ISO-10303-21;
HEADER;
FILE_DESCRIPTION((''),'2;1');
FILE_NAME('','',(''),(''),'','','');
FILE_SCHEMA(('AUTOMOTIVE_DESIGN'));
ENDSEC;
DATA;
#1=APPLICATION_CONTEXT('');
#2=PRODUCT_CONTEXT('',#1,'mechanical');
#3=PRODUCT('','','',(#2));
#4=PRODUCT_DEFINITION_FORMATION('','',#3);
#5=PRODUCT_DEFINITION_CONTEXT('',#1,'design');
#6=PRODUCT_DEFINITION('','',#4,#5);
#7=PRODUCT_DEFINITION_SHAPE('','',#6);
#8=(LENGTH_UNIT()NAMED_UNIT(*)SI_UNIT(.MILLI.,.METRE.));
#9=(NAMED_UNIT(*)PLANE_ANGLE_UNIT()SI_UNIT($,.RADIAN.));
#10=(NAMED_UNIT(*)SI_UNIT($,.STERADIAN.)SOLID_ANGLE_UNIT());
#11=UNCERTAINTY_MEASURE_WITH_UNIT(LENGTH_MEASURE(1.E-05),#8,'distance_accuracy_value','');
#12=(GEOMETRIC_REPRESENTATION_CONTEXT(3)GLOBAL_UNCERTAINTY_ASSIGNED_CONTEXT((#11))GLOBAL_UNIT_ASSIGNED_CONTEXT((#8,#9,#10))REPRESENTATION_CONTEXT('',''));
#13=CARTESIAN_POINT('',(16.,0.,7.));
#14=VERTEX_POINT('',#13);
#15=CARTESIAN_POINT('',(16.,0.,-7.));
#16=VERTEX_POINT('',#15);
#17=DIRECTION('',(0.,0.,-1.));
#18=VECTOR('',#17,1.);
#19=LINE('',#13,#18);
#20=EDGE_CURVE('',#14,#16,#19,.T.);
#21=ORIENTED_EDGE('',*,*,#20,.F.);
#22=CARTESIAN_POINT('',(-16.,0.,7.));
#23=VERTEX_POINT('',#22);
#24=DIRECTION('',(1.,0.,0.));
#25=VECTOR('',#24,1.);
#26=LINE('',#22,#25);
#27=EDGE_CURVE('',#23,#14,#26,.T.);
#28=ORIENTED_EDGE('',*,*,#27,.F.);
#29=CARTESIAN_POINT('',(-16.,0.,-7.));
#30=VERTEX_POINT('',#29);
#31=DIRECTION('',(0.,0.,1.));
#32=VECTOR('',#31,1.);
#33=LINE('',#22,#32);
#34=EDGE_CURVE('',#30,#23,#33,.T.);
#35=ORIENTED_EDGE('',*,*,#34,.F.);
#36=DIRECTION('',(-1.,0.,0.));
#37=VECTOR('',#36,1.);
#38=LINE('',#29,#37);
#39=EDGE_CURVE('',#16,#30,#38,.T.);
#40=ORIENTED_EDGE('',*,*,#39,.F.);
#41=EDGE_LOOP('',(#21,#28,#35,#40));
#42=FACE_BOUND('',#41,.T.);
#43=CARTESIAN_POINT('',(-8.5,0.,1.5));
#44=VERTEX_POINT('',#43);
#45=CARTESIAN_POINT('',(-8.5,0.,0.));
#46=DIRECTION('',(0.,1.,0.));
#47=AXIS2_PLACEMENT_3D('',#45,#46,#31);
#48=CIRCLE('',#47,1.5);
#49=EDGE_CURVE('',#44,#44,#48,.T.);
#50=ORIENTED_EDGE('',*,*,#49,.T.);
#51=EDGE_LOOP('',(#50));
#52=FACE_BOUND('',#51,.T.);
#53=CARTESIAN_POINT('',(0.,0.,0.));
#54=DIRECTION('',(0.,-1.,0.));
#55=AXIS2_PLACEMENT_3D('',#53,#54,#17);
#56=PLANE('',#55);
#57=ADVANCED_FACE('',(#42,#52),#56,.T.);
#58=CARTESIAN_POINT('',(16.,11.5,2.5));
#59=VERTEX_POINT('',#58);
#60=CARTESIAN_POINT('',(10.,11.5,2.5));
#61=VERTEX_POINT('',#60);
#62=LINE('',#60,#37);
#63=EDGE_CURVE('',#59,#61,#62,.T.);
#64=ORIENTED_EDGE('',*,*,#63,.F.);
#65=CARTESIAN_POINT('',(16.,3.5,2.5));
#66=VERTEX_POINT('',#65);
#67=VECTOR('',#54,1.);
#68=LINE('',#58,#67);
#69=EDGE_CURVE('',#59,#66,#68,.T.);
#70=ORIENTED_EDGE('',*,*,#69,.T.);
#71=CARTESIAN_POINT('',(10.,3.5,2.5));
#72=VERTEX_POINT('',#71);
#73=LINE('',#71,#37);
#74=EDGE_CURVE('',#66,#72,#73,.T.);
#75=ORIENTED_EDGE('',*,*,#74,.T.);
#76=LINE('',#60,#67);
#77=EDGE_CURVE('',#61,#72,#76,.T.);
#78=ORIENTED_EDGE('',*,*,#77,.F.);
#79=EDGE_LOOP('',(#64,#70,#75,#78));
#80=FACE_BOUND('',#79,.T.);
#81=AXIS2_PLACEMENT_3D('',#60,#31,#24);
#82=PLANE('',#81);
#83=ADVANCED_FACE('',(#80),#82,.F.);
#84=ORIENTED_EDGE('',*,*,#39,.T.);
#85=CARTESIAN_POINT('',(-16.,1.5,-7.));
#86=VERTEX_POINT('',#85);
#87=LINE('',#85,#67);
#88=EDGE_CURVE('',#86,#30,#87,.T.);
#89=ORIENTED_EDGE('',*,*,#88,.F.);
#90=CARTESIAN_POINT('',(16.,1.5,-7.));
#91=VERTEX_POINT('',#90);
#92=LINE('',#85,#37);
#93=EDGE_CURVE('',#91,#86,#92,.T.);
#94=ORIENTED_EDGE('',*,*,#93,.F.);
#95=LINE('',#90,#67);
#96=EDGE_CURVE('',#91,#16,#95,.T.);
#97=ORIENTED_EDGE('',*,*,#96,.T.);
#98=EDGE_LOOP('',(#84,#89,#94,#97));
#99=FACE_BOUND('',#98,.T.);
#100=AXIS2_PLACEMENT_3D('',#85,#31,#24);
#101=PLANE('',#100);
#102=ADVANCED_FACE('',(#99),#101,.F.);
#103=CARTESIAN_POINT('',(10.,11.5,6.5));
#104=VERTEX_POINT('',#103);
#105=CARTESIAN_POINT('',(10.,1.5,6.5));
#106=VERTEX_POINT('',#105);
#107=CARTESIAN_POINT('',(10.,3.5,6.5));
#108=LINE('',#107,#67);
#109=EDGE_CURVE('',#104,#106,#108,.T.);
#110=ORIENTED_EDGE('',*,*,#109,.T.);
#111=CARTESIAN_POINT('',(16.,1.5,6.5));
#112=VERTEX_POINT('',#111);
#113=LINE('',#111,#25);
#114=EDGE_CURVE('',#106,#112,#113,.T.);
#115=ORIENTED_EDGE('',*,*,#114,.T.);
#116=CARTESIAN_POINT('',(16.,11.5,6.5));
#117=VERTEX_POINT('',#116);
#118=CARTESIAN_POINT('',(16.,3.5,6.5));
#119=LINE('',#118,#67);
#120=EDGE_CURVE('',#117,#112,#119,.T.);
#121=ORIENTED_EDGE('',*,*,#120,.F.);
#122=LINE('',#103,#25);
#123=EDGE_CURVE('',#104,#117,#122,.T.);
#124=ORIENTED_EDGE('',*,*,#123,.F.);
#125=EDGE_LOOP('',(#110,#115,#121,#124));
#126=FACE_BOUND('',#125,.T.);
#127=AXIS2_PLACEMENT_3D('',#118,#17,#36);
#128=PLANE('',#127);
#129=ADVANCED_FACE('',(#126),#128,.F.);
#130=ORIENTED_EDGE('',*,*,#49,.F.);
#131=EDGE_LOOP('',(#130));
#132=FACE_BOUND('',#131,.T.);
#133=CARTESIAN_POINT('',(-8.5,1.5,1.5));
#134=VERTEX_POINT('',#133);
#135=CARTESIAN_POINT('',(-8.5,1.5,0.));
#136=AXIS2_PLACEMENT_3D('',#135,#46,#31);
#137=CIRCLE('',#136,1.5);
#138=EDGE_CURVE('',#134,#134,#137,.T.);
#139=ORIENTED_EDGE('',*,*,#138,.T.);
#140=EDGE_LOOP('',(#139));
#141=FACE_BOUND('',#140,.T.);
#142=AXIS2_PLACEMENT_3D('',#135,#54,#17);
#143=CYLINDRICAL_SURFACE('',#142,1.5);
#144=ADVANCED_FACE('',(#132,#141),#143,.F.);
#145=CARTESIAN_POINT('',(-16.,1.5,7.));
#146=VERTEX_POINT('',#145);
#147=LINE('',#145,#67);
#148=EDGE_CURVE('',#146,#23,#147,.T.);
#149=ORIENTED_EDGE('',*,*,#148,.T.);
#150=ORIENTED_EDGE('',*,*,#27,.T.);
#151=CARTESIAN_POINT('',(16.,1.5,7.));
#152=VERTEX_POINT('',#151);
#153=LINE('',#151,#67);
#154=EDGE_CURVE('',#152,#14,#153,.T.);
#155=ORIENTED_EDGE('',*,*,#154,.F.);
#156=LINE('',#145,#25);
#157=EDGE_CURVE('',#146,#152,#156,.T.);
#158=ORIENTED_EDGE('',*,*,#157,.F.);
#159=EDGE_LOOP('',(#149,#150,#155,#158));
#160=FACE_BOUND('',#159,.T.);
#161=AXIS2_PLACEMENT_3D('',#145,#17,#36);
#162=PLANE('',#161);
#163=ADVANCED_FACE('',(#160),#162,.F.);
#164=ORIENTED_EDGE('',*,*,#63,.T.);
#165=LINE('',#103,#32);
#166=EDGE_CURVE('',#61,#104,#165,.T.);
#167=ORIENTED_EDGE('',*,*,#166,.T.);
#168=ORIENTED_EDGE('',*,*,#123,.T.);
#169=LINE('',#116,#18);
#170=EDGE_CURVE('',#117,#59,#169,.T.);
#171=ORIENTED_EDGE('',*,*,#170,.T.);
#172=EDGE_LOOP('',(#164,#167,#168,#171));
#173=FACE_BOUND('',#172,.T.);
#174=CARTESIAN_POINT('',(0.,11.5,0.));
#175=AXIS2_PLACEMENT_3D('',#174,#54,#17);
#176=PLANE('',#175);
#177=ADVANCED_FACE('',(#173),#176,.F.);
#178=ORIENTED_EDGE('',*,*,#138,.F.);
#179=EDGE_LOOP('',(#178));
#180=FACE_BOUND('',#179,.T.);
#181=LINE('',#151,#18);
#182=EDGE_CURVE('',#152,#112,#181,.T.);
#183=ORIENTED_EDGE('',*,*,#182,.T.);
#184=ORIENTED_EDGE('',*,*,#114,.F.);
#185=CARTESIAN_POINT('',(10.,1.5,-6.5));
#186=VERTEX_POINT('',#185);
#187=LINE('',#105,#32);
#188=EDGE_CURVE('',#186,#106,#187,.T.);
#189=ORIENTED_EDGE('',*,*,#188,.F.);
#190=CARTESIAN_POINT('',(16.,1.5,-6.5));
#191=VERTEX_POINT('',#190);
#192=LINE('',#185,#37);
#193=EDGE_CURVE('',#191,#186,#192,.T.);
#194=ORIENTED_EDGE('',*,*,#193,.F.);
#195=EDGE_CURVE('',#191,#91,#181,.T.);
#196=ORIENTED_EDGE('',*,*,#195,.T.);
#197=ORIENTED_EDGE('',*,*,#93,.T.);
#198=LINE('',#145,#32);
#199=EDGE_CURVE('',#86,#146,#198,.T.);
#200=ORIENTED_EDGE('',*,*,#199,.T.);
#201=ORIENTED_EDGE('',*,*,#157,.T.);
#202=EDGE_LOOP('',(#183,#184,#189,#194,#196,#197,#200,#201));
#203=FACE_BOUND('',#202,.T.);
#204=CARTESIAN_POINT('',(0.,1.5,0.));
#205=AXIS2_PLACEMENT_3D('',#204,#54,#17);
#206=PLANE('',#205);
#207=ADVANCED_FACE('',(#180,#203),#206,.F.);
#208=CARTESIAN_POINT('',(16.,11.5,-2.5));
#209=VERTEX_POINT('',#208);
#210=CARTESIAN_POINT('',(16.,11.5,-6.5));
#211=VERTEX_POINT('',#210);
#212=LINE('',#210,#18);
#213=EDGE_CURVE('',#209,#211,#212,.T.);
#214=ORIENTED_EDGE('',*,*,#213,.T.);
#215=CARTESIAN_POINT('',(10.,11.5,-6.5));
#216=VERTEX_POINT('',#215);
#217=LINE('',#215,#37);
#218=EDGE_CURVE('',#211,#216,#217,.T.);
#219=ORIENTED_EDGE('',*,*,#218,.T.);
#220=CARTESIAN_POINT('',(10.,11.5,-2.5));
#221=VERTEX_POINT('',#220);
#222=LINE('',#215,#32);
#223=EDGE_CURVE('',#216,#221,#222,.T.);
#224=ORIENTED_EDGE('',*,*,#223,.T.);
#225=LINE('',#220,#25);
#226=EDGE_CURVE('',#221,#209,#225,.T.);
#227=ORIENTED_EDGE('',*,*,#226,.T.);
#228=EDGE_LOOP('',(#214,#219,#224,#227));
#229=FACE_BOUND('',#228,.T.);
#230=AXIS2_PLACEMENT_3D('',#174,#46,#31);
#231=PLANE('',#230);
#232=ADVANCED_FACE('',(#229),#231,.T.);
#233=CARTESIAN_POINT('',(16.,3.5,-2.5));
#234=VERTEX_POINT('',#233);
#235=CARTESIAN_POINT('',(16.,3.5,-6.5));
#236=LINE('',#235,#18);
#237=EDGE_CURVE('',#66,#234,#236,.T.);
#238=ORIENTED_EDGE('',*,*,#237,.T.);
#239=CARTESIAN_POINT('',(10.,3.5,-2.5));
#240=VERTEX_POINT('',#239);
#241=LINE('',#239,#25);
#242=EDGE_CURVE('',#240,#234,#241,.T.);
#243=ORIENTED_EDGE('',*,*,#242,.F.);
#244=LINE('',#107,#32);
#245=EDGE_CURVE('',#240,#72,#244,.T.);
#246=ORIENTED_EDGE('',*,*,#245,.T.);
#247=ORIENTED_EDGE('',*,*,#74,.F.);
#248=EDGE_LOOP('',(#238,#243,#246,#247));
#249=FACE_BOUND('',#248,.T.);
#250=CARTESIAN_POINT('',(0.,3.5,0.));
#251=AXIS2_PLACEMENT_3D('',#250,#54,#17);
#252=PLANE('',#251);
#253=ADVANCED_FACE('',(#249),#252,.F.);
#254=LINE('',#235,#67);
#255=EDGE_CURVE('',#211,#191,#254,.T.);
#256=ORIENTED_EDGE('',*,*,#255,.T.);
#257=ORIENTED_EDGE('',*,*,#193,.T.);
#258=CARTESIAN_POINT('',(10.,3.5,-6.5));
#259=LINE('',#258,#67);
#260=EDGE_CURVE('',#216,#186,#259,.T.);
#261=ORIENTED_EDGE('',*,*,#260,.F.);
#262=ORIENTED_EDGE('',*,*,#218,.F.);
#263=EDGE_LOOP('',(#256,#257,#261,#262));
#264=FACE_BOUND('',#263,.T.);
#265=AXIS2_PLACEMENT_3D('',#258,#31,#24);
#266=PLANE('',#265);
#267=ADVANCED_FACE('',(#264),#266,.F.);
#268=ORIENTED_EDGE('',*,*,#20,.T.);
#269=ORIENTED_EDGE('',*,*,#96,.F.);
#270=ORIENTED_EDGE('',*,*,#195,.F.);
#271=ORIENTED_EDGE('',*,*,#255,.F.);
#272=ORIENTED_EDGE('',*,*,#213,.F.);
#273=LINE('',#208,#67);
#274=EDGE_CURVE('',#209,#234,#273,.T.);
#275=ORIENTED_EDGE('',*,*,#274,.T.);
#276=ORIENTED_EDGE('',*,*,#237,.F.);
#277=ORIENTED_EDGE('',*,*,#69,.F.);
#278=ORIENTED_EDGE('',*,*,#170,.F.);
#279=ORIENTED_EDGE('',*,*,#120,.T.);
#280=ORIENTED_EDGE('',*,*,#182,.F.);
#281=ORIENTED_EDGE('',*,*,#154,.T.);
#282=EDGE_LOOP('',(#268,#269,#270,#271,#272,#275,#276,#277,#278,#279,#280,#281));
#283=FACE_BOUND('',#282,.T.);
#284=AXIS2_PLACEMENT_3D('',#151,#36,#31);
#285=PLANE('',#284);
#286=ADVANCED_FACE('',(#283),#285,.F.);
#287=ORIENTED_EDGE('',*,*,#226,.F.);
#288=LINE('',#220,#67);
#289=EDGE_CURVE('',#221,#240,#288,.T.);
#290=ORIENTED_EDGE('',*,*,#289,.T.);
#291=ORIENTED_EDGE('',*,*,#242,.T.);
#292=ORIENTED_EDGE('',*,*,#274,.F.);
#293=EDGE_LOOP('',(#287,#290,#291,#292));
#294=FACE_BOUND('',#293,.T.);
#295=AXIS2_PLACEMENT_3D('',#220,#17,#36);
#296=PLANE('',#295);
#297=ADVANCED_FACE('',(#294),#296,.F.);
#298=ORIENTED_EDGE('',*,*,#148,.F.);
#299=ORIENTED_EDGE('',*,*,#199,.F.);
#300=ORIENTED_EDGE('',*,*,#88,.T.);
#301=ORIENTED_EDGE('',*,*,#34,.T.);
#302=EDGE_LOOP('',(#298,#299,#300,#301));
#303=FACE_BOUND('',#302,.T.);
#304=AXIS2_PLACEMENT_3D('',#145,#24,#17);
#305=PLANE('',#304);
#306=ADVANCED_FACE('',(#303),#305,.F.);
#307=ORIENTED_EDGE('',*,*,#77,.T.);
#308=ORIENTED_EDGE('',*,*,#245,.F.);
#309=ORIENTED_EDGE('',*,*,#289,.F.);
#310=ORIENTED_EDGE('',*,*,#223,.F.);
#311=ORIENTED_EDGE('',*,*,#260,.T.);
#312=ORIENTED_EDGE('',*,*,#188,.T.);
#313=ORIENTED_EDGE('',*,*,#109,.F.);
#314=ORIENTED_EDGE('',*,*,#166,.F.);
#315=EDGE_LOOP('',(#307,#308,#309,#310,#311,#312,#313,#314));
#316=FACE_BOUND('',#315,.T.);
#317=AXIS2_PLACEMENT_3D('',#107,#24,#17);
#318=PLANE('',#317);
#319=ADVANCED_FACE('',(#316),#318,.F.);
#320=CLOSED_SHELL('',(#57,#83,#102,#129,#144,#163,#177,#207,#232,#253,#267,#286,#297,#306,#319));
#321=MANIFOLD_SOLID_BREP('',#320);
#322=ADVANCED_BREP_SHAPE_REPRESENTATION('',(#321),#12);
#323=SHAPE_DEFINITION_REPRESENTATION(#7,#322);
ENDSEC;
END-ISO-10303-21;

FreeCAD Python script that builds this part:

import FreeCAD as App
import Part
import Sketcher
from FreeCAD import Vector
Q = App.Units.Quantity


def add_polygon(sketch, points):
    """Adds a closed chain of lines whose ends are joined by coincident constraints."""
    first, n = sketch.GeometryCount, len(points)
    for a, b in zip(points, points[1:] + points[:1]):
        sketch.addGeometry(Part.LineSegment(App.Vector(*a, 0), App.Vector(*b, 0)), False)
    for i in range(n):
        sketch.addConstraint(Sketcher.Constraint("Coincident", first + i, 2, first + (i + 1) % n, 1))

doc = App.newDocument("Part")
body = doc.addObject("PartDesign::Body", "Body")

# Sketch on XZ plane
sketch1 = body.newObject("Sketcher::SketchObject", "Sketch")
sketch1.AttachmentSupport = (doc.getObject("XZ_Plane"), [""])
sketch1.MapMode = "FlatFace"
add_polygon(sketch1, [(-16, -7), (-16, 7), (16, 7), (16, -7)])  # lines 0-3
sketch1.addGeometry(Part.Circle(Vector(-8.5, 0, 0), Vector(0, 0, 1), 1.5), False)  # 4
sketch1.addConstraint(Sketcher.Constraint("Vertical", 0))
sketch1.addConstraint(Sketcher.Constraint("Horizontal", 1))
sketch1.addConstraint(Sketcher.Constraint("Vertical", 2))
sketch1.addConstraint(Sketcher.Constraint("Horizontal", 3))
sketch1.addConstraint(Sketcher.Constraint("Symmetric", 0, 2, 2, 2, -1, 1))
sketch1.addConstraint(Sketcher.Constraint("PointOnObject", 4, 3, -1))
sketch1.addConstraint(Sketcher.Constraint("Diameter", 4, Q("3 mm")))
sketch1.addConstraint(Sketcher.Constraint("DistanceX", 1, 1, 1, 2, Q("32 mm")))
sketch1.addConstraint(Sketcher.Constraint("DistanceY", 0, 1, 0, 2, Q("14 mm")))
sketch1.addConstraint(Sketcher.Constraint("DistanceX", 4, 3, -1, 1, Q("8.5 mm")))
pad1 = body.newObject("PartDesign::Pad", "Pad")
pad1.Profile = sketch1
pad1.Length = 1.5
pad1.Reversed = True

# Sketch on XZ plane
sketch2 = body.newObject("Sketcher::SketchObject", "Sketch001")
sketch2.AttachmentSupport = (doc.getObject("XZ_Plane"), [""])
sketch2.MapMode = "FlatFace"
sketch2.AttachmentOffset = App.Placement(Vector(0, 0, -1.5), App.Rotation())
add_polygon(sketch2, [(10, -6), (10, 6), (16, 6), (16, -6)])  # lines 0-3
sketch2.addConstraint(Sketcher.Constraint("Vertical", 0))
sketch2.addConstraint(Sketcher.Constraint("Horizontal", 1))
sketch2.addConstraint(Sketcher.Constraint("Vertical", 2))
sketch2.addConstraint(Sketcher.Constraint("Horizontal", 3))
sketch2.addConstraint(Sketcher.Constraint("DistanceX", 1, 1, 1, 2, Q("6 mm")))
sketch2.addConstraint(Sketcher.Constraint("DistanceY", 0, 1, 0, 2, Q("13 mm")))
sketch2.addConstraint(Sketcher.Constraint("DistanceX", -1, 1, 0, 2, Q("10 mm")))
sketch2.addConstraint(Sketcher.Constraint("DistanceY", -1, 1, 0, 2, Q("6.5 mm")))
pad2 = body.newObject("PartDesign::Pad", "Pad001")
pad2.Profile = sketch2
pad2.Length = 2
pad2.Reversed = True

# Sketch on XZ plane
sketch3 = body.newObject("Sketcher::SketchObject", "Sketch002")
sketch3.AttachmentSupport = (doc.getObject("XZ_Plane"), [""])
sketch3.MapMode = "FlatFace"
sketch3.AttachmentOffset = App.Placement(Vector(0, 0, -3.5), App.Rotation())
add_polygon(sketch3, [(10, -6.5), (10, -2.5), (16, -2.5), (16, -6.5)])  # lines 0-3
add_polygon(sketch3, [(10, 2.5), (10, 6.5), (16, 6.5), (16, 2.5)])  # lines 4-7
sketch3.addConstraint(Sketcher.Constraint("Vertical", 0))
sketch3.addConstraint(Sketcher.Constraint("Horizontal", 1))
sketch3.addConstraint(Sketcher.Constraint("Vertical", 2))
sketch3.addConstraint(Sketcher.Constraint("Horizontal", 3))
sketch3.addConstraint(Sketcher.Constraint("Vertical", 4))
sketch3.addConstraint(Sketcher.Constraint("Horizontal", 5))
sketch3.addConstraint(Sketcher.Constraint("Vertical", 6))
sketch3.addConstraint(Sketcher.Constraint("Horizontal", 7))
sketch3.addConstraint(Sketcher.Constraint("Symmetric", 3, 2, 4, 2, -1))
sketch3.addConstraint(Sketcher.Constraint("Symmetric", 1, 2, 6, 2, -1))
sketch3.addConstraint(Sketcher.Constraint("DistanceX", 1, 1, 1, 2, Q("6 mm")))
sketch3.addConstraint(Sketcher.Constraint("DistanceY", 0, 1, 0, 2, Q("4 mm")))
sketch3.addConstraint(Sketcher.Constraint("DistanceX", -1, 1, 0, 2, Q("10 mm")))
sketch3.addConstraint(Sketcher.Constraint("DistanceY", 0, 2, 4, 2, Q("9 mm")))
pad3 = body.newObject("PartDesign::Pad", "Pad002")
pad3.Profile = sketch3
pad3.Length = 8
pad3.Reversed = True

doc.recompute()
